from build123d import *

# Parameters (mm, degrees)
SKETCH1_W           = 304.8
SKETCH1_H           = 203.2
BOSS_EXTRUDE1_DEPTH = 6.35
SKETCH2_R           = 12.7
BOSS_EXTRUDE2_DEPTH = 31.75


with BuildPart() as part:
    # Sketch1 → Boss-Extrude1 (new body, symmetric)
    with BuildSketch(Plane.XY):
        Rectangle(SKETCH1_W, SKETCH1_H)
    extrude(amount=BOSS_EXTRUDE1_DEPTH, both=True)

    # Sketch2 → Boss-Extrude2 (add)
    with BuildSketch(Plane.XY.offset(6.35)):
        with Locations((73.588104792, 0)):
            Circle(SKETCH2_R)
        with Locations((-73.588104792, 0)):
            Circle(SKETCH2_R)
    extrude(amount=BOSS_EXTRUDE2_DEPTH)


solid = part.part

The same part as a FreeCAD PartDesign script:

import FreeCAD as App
import Part
import Sketcher

V = App.Vector
Q = App.Units.Quantity

doc = App.newDocument("Part")
body = doc.addObject("PartDesign::Body", "Body")

# Sketch on XY plane
sketch1 = body.newObject("Sketcher::SketchObject", "Sketch")
sketch1.AttachmentSupport = (doc.getObject("XY_Plane"), [""])
sketch1.MapMode = "FlatFace"
sketch1.addGeometry(Part.LineSegment(V(-152, 102, 0), V(-152, -102, 0)), False)
sketch1.addGeometry(Part.LineSegment(V(-152, -102, 0), V(152, -102, 0)), False)
sketch1.addGeometry(Part.LineSegment(V(152, -102, 0), V(152, 102, 0)), False)
sketch1.addGeometry(Part.LineSegment(V(152, 102, 0), V(-152, 102, 0)), False)
sketch1.addConstraint(Sketcher.Constraint("Coincident", 0, 2, 1, 1))
sketch1.addConstraint(Sketcher.Constraint("Coincident", 1, 2, 2, 1))
sketch1.addConstraint(Sketcher.Constraint("Coincident", 2, 2, 3, 1))
sketch1.addConstraint(Sketcher.Constraint("Coincident", 3, 2, 0, 1))
sketch1.addConstraint(Sketcher.Constraint("Vertical", 0))
sketch1.addConstraint(Sketcher.Constraint("Horizontal", 1))
sketch1.addConstraint(Sketcher.Constraint("Vertical", 2))
sketch1.addConstraint(Sketcher.Constraint("Horizontal", 3))
sketch1.addConstraint(Sketcher.Constraint("Symmetric", 0, 2, 2, 2, -1, 1))
sketch1.addConstraint(Sketcher.Constraint("DistanceX", 1, 1, 1, 2, Q("12 in")))
sketch1.addConstraint(Sketcher.Constraint("DistanceY", 0, 2, 0, 1, Q("8 in")))
pad1 = body.newObject("PartDesign::Pad", "Pad")
pad1.Profile = sketch1
pad1.Length = Q("0.5 in")
pad1.Midplane = True

# Sketch on XY plane
sketch2 = body.newObject("Sketcher::SketchObject", "Sketch001")
sketch2.AttachmentSupport = (doc.getObject("XY_Plane"), [""])
sketch2.MapMode = "FlatFace"
sketch2.AttachmentOffset = App.Placement(V(0, 0, 0.25 * 25.4), App.Rotation())
sketch2.addGeometry(Part.Circle(V(74, 0, 0), V(0, 0, 1), 13), False)
sketch2.addGeometry(Part.Circle(V(-74, 0, 0), V(0, 0, 1), 13), False)
sketch2.addConstraint(Sketcher.Constraint("Equal", 0, 1))
sketch2.addConstraint(Sketcher.Constraint("Symmetric", 0, 3, 1, 3, -1, 1))
sketch2.addConstraint(Sketcher.Constraint("PointOnObject", 0, 3, -1))
sketch2.addConstraint(Sketcher.Constraint("Diameter", 0, Q("1 in")))
sketch2.addConstraint(Sketcher.Constraint("DistanceX", 1, 3, 0, 3, Q("147.17621 mm")))
pad2 = body.newObject("PartDesign::Pad", "Pad001")
pad2.Profile = sketch2
pad2.Length = Q("1.25 in")

doc.recompute()
